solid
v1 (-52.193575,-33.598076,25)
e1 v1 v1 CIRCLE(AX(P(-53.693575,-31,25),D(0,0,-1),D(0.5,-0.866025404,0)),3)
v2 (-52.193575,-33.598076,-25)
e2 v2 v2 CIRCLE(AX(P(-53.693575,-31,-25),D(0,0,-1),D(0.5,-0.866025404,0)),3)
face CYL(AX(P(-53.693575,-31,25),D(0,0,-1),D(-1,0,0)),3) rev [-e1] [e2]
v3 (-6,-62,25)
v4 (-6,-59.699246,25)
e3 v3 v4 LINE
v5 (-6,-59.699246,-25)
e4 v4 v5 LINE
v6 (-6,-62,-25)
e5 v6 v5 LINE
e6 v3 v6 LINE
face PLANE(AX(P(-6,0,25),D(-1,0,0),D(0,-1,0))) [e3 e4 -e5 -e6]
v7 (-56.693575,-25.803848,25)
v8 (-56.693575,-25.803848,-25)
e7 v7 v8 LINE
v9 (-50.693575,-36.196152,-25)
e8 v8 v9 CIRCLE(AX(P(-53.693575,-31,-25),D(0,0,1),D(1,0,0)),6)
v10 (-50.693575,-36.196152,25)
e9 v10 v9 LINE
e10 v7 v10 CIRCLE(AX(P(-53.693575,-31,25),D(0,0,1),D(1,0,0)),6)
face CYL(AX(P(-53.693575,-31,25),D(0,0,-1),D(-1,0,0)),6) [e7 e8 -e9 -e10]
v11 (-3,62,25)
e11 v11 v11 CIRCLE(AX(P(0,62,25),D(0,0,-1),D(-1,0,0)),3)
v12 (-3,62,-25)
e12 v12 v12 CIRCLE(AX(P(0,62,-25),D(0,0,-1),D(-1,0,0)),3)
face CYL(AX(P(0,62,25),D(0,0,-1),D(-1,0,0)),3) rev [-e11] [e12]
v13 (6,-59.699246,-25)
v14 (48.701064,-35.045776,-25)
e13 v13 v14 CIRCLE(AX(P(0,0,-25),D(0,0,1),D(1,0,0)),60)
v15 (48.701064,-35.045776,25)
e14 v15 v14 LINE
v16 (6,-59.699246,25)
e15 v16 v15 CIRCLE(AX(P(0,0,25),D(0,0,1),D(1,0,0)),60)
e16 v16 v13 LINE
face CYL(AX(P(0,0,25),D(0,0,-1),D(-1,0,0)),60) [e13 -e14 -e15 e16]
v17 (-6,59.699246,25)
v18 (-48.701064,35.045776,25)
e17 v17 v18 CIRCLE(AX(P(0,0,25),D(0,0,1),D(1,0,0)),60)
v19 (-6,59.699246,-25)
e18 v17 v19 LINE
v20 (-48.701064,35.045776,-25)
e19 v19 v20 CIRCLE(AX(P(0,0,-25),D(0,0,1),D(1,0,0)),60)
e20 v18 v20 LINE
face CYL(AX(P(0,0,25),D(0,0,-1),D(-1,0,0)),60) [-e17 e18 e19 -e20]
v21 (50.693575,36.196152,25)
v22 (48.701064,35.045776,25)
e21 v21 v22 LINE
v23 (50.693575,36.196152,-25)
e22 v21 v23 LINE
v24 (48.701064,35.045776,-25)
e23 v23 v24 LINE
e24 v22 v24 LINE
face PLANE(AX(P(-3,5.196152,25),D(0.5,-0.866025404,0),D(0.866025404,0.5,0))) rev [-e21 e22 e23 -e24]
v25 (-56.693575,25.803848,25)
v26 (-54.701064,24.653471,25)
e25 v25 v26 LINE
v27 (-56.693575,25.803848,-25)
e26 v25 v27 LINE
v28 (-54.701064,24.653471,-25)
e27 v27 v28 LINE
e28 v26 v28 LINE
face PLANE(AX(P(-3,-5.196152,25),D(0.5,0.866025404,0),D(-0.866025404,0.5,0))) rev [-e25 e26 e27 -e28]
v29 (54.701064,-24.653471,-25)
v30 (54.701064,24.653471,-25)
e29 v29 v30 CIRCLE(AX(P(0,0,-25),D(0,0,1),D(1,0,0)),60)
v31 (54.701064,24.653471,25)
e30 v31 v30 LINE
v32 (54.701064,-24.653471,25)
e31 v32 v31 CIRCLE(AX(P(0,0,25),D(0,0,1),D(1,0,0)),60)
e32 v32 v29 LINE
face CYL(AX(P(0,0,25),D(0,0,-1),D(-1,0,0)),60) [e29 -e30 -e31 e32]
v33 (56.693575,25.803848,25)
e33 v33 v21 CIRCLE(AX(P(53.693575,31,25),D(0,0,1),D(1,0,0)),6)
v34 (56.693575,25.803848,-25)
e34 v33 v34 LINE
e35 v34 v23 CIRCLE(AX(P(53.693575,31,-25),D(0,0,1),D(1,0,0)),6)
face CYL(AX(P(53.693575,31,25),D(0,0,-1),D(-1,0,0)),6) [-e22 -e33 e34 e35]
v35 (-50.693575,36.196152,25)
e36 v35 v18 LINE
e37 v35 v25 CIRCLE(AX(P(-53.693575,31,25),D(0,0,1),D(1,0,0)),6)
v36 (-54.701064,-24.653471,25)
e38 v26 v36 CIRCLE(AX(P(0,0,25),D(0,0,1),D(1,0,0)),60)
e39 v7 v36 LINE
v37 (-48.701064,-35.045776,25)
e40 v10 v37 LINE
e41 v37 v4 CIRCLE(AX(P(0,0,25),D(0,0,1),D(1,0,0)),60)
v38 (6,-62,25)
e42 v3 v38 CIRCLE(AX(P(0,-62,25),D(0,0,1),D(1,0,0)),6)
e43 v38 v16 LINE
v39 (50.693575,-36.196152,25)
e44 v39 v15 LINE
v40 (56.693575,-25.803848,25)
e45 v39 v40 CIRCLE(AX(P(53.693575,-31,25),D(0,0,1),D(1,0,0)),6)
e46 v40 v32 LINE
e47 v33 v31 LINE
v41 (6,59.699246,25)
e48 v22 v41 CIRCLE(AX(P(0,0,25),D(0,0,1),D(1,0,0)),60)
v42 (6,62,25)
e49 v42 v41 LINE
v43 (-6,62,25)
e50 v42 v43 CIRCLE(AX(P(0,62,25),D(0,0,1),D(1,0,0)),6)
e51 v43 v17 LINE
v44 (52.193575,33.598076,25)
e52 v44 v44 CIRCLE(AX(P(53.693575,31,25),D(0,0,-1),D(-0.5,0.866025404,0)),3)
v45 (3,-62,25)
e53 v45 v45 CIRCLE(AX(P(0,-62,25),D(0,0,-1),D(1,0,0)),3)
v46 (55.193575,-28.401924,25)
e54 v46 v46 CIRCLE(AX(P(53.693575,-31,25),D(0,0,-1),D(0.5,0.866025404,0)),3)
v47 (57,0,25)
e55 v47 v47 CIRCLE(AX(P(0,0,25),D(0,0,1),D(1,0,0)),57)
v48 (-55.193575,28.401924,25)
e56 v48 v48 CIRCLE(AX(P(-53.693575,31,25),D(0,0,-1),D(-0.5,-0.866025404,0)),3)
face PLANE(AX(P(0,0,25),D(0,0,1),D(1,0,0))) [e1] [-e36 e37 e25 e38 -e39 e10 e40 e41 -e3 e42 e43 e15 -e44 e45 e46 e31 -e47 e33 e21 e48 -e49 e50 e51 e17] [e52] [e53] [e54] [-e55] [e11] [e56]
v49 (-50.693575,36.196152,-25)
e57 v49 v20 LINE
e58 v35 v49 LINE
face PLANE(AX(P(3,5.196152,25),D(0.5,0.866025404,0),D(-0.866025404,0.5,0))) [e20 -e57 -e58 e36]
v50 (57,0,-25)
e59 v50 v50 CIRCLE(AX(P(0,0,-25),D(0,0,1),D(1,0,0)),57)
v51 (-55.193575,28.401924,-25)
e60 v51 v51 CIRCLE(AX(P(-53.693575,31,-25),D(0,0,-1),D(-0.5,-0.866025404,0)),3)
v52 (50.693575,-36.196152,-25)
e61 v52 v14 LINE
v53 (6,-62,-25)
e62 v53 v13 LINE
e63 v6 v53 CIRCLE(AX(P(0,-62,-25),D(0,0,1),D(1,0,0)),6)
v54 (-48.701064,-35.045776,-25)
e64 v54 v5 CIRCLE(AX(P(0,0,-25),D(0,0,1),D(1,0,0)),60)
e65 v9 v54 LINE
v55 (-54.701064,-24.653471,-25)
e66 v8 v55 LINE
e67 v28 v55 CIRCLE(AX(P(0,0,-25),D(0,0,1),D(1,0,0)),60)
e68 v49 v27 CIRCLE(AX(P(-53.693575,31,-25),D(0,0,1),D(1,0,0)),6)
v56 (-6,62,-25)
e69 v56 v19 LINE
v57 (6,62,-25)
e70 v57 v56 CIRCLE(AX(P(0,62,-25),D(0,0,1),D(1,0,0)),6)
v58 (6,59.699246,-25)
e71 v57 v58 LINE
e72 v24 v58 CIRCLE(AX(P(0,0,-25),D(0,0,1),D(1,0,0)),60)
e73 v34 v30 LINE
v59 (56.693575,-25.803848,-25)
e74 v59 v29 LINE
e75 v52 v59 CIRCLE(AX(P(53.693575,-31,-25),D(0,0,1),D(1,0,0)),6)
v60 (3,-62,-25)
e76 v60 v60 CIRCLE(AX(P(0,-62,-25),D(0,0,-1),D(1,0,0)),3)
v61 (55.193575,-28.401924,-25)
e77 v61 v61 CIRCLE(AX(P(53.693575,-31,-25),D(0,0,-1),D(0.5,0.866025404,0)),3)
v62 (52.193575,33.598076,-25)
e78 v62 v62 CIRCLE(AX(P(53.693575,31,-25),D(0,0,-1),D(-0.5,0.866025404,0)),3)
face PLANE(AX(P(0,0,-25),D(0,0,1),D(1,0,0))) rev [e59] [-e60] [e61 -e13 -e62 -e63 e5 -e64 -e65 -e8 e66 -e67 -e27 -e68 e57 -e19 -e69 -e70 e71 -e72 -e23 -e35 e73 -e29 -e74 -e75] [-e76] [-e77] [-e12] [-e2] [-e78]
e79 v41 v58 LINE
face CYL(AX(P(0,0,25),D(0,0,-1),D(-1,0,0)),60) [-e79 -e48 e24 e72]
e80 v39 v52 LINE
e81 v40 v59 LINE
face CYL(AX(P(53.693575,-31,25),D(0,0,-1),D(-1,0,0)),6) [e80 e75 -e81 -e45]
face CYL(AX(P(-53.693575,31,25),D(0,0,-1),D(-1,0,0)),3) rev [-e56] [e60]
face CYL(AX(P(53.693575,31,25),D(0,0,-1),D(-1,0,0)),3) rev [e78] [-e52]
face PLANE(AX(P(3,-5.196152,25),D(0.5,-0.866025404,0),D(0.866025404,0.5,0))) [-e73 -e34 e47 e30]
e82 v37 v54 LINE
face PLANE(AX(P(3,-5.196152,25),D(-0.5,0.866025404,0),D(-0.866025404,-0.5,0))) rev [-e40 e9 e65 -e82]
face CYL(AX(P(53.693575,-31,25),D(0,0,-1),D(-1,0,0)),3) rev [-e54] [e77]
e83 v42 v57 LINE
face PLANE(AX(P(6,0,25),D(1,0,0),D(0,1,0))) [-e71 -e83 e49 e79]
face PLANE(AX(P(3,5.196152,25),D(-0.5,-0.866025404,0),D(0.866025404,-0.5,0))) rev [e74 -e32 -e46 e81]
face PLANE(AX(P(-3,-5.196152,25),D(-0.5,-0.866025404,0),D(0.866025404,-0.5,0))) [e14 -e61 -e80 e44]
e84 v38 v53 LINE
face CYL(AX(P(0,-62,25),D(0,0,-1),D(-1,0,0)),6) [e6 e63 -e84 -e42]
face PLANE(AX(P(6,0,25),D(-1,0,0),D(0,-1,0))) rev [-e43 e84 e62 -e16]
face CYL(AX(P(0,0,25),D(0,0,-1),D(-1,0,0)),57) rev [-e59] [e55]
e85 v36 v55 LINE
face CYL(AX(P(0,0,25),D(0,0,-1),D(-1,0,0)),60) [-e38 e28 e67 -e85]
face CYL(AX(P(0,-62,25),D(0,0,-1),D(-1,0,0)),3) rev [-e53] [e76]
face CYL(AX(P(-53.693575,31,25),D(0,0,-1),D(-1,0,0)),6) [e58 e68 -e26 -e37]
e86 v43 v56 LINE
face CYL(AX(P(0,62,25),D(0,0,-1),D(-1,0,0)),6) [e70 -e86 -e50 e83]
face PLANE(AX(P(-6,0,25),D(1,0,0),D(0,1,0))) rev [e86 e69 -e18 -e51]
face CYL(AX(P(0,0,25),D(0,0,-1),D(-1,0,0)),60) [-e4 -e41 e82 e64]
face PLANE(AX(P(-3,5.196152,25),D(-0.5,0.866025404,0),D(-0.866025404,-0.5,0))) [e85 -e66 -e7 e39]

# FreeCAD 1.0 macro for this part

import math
import FreeCAD as App
import Part
import Sketcher
Q = App.Units.Quantity

doc = App.newDocument("Part")
body = doc.addObject("PartDesign::Body", "Body")

sketch1 = body.newObject("Sketcher::SketchObject", "Sketch")
sketch1.AttachmentSupport = (doc.getObject("XY_Plane"), [""])
sketch1.MapMode = "FlatFace"
sketch1.addGeometry(Part.LineSegment(App.Vector(6, 59.699246, 0), App.Vector(6, 62, 0)), False)
sketch1.addGeometry(Part.ArcOfCircle(Part.Circle(App.Vector(0, 62, 0), App.Vector(0, 0, 1), 6), math.radians(0), math.radians(180)), False)
sketch1.addGeometry(Part.LineSegment(App.Vector(-6, 62, 0), App.Vector(-6, 59.699246, 0)), False)
sketch1.addGeometry(Part.ArcOfCircle(Part.Circle(App.Vector(0, 0, 0), App.Vector(0, 0, 1), 60), math.radians(95.73917), math.radians(144.26083)), False)
sketch1.addGeometry(Part.LineSegment(App.Vector(-48.701064, 35.045776, 0), App.Vector(-50.693575, 36.196152, 0)), False)
sketch1.addGeometry(Part.ArcOfCircle(Part.Circle(App.Vector(-53.693575, 31, 0), App.Vector(0, 0, 1), 6), math.radians(60), math.radians(240)), False)
sketch1.addGeometry(Part.LineSegment(App.Vector(-56.693575, 25.803848, 0), App.Vector(-54.701064, 24.653471, 0)), False)
sketch1.addGeometry(Part.ArcOfCircle(Part.Circle(App.Vector(0, 0, 0), App.Vector(0, 0, 1), 60), math.radians(155.73917), math.radians(204.26083)), False)
sketch1.addGeometry(Part.LineSegment(App.Vector(-54.701064, -24.653471, 0), App.Vector(-56.693575, -25.803848, 0)), False)
sketch1.addGeometry(Part.ArcOfCircle(Part.Circle(App.Vector(-53.693575, -31, 0), App.Vector(0, 0, 1), 6), math.radians(120), math.radians(300)), False)
sketch1.addGeometry(Part.LineSegment(App.Vector(-50.693575, -36.196152, 0), App.Vector(-48.701064, -35.045776, 0)), False)
sketch1.addGeometry(Part.ArcOfCircle(Part.Circle(App.Vector(0, 0, 0), App.Vector(0, 0, 1), 60), math.radians(-144.26083), math.radians(-95.73917)), False)
sketch1.addGeometry(Part.LineSegment(App.Vector(-6, -59.699246, 0), App.Vector(-6, -62, 0)), False)
sketch1.addGeometry(Part.ArcOfCircle(Part.Circle(App.Vector(0, -62, 0), App.Vector(0, 0, 1), 6), math.radians(180), math.radians(360)), False)
sketch1.addGeometry(Part.LineSegment(App.Vector(6, -62, 0), App.Vector(6, -59.699246, 0)), False)
sketch1.addGeometry(Part.ArcOfCircle(Part.Circle(App.Vector(0, 0, 0), App.Vector(0, 0, 1), 60), math.radians(-84.26083), math.radians(-35.73917)), False)
sketch1.addGeometry(Part.LineSegment(App.Vector(48.701064, -35.045776, 0), App.Vector(50.693575, -36.196152, 0)), False)
sketch1.addGeometry(Part.ArcOfCircle(Part.Circle(App.Vector(53.693575, -31, 0), App.Vector(0, 0, 1), 6), math.radians(-120), math.radians(60)), False)
sketch1.addGeometry(Part.LineSegment(App.Vector(56.693575, -25.803848, 0), App.Vector(54.701064, -24.653471, 0)), False)
sketch1.addGeometry(Part.ArcOfCircle(Part.Circle(App.Vector(0, 0, 0), App.Vector(0, 0, 1), 60), math.radians(-24.26083), math.radians(24.26083)), False)
sketch1.addGeometry(Part.LineSegment(App.Vector(54.701064, 24.653471, 0), App.Vector(56.693575, 25.803848, 0)), False)
sketch1.addGeometry(Part.ArcOfCircle(Part.Circle(App.Vector(53.693575, 31, 0), App.Vector(0, 0, 1), 6), math.radians(-60), math.radians(120)), False)
sketch1.addGeometry(Part.LineSegment(App.Vector(50.693575, 36.196152, 0), App.Vector(48.701064, 35.045776, 0)), False)
sketch1.addGeometry(Part.ArcOfCircle(Part.Circle(App.Vector(0, 0, 0), App.Vector(0, 0, 1), 60), math.radians(35.73917), math.radians(84.26083)), False)
sketch1.addGeometry(Part.Circle(App.Vector(0, 0, 0), App.Vector(0, 0, 1), 57), False)
sketch1.addConstraint(Sketcher.Constraint("Tangent", 0, 2, 1, 1))
sketch1.addConstraint(Sketcher.Constraint("Tangent", 1, 2, 2, 1))
sketch1.addConstraint(Sketcher.Constraint("Coincident", 2, 2, 3, 1))
sketch1.addConstraint(Sketcher.Constraint("Coincident", 3, 2, 4, 1))
sketch1.addConstraint(Sketcher.Constraint("Tangent", 4, 2, 5, 1))
sketch1.addConstraint(Sketcher.Constraint("Tangent", 5, 2, 6, 1))
sketch1.addConstraint(Sketcher.Constraint("Coincident", 6, 2, 7, 1))
sketch1.addConstraint(Sketcher.Constraint("Coincident", 7, 2, 8, 1))
sketch1.addConstraint(Sketcher.Constraint("Tangent", 8, 2, 9, 1))
sketch1.addConstraint(Sketcher.Constraint("Tangent", 9, 2, 10, 1))
sketch1.addConstraint(Sketcher.Constraint("Coincident", 10, 2, 11, 1))
sketch1.addConstraint(Sketcher.Constraint("Coincident", 11, 2, 12, 1))
sketch1.addConstraint(Sketcher.Constraint("Tangent", 12, 2, 13, 1))
sketch1.addConstraint(Sketcher.Constraint("Tangent", 13, 2, 14, 1))
sketch1.addConstraint(Sketcher.Constraint("Coincident", 14, 2, 15, 1))
sketch1.addConstraint(Sketcher.Constraint("Coincident", 15, 2, 16, 1))
sketch1.addConstraint(Sketcher.Constraint("Tangent", 16, 2, 17, 1))
sketch1.addConstraint(Sketcher.Constraint("Tangent", 17, 2, 18, 1))
sketch1.addConstraint(Sketcher.Constraint("Coincident", 18, 2, 19, 1))
sketch1.addConstraint(Sketcher.Constraint("Coincident", 19, 2, 20, 1))
sketch1.addConstraint(Sketcher.Constraint("Tangent", 20, 2, 21, 1))
sketch1.addConstraint(Sketcher.Constraint("Tangent", 21, 2, 22, 1))
sketch1.addConstraint(Sketcher.Constraint("Coincident", 22, 2, 23, 1))
sketch1.addConstraint(Sketcher.Constraint("Coincident", 23, 2, 0, 1))
sketch1.addConstraint(Sketcher.Constraint("Vertical", 0))
sketch1.addConstraint(Sketcher.Constraint("Vertical", 2))
sketch1.addConstraint(Sketcher.Constraint("Vertical", 12))
sketch1.addConstraint(Sketcher.Constraint("Vertical", 14))
sketch1.addConstraint(Sketcher.Constraint("Coincident", 3, 3, -1, 1))
sketch1.addConstraint(Sketcher.Constraint("Coincident", 7, 3, -1, 1))
sketch1.addConstraint(Sketcher.Constraint("Coincident", 11, 3, -1, 1))
sketch1.addConstraint(Sketcher.Constraint("Coincident", 15, 3, -1, 1))
sketch1.addConstraint(Sketcher.Constraint("Coincident", 19, 3, -1, 1))
sketch1.addConstraint(Sketcher.Constraint("Coincident", 23, 3, -1, 1))
sketch1.addConstraint(Sketcher.Constraint("Coincident", 24, 3, -1, 1))
sketch1.addConstraint(Sketcher.Constraint("Equal", 1, 5))
sketch1.addConstraint(Sketcher.Constraint("Equal", 3, 7))
sketch1.addConstraint(Sketcher.Constraint("Equal", 5, 9))
sketch1.addConstraint(Sketcher.Constraint("Equal", 7, 11))
sketch1.addConstraint(Sketcher.Constraint("Equal", 9, 13))
sketch1.addConstraint(Sketcher.Constraint("Equal", 11, 15))
sketch1.addConstraint(Sketcher.Constraint("Equal", 13, 17))
sketch1.addConstraint(Sketcher.Constraint("Equal", 15, 19))
sketch1.addConstraint(Sketcher.Constraint("Equal", 17, 21))
sketch1.addConstraint(Sketcher.Constraint("Equal", 19, 23))
sketch1.addConstraint(Sketcher.Constraint("Symmetric", 1, 3, 13, 3, -1, 1))
sketch1.addConstraint(Sketcher.Constraint("Symmetric", 5, 3, 17, 3, -1, 1))
sketch1.addConstraint(Sketcher.Constraint("Symmetric", 9, 3, 21, 3, -1, 1))
sketch1.addConstraint(Sketcher.Constraint("Symmetric", 9, 3, 17, 3, -2))
sketch1.addConstraint(Sketcher.Constraint("PointOnObject", 1, 3, -2))
sketch1.addConstraint(Sketcher.Constraint("Parallel", 4, 6))
sketch1.addConstraint(Sketcher.Constraint("Parallel", 8, 10))
sketch1.addConstraint(Sketcher.Constraint("Parallel", 6, 16))
sketch1.addConstraint(Sketcher.Constraint("Parallel", 16, 18))
sketch1.addConstraint(Sketcher.Constraint("Parallel", 10, 20))
sketch1.addConstraint(Sketcher.Constraint("Parallel", 20, 22))
sketch1.addConstraint(Sketcher.Constraint("Horizontal", 10, 2, 15, 2))
sketch1.addConstraint(Sketcher.Constraint("Equal", 4, 6))
sketch1.addConstraint(Sketcher.Constraint("Diameter", 24, Q("114 mm")))
sketch1.addConstraint(Sketcher.Constraint("Radius", 1, Q("6 mm")))
sketch1.addConstraint(Sketcher.Constraint("Radius", 3, Q("60 mm")))
sketch1.addConstraint(Sketcher.Constraint("Angle", 4, Q("150 deg")))
sketch1.addConstraint(Sketcher.Constraint("DistanceY", -1, 1, 1, 3, Q("62 mm")))
sketch1.addConstraint(Sketcher.Constraint("DistanceY", -1, 1, 5, 3, Q("31 mm")))
pad1 = body.newObject("PartDesign::Pad", "Pad")
pad1.Profile = sketch1
pad1.Length = 50
pad1.Midplane = True

sketch2 = body.newObject("Sketcher::SketchObject", "Sketch001")
sketch2.AttachmentSupport = (doc.getObject("XY_Plane"), [""])
sketch2.MapMode = "FlatFace"
sketch2.AttachmentOffset = App.Placement(App.Vector(0, 0, -25), App.Rotation())
sketch2.addGeometry(Part.Circle(App.Vector(0, 62, 0), App.Vector(0, 0, 1), 3), False)
sketch2.addConstraint(Sketcher.Constraint("PointOnObject", 0, 3, -2))
sketch2.addConstraint(Sketcher.Constraint("Diameter", 0, Q("6 mm")))
sketch2.addConstraint(Sketcher.Constraint("DistanceY", -1, 1, 0, 3, Q("62 mm")))
pocket1 = body.newObject("PartDesign::Pocket", "Pocket")
pocket1.Profile = sketch2
pocket1.Type = "ThroughAll"
pocket1.Reversed = True
doc.recompute()

polarpattern = body.newObject("PartDesign::PolarPattern", "PolarPattern")
polarpattern.Originals = [pocket1]
polarpattern.Axis = (doc.getObject("Z_Axis"), [""])
polarpattern.Angle = 360
polarpattern.Occurrences = 6
body.Tip = polarpattern

doc.recompute()
